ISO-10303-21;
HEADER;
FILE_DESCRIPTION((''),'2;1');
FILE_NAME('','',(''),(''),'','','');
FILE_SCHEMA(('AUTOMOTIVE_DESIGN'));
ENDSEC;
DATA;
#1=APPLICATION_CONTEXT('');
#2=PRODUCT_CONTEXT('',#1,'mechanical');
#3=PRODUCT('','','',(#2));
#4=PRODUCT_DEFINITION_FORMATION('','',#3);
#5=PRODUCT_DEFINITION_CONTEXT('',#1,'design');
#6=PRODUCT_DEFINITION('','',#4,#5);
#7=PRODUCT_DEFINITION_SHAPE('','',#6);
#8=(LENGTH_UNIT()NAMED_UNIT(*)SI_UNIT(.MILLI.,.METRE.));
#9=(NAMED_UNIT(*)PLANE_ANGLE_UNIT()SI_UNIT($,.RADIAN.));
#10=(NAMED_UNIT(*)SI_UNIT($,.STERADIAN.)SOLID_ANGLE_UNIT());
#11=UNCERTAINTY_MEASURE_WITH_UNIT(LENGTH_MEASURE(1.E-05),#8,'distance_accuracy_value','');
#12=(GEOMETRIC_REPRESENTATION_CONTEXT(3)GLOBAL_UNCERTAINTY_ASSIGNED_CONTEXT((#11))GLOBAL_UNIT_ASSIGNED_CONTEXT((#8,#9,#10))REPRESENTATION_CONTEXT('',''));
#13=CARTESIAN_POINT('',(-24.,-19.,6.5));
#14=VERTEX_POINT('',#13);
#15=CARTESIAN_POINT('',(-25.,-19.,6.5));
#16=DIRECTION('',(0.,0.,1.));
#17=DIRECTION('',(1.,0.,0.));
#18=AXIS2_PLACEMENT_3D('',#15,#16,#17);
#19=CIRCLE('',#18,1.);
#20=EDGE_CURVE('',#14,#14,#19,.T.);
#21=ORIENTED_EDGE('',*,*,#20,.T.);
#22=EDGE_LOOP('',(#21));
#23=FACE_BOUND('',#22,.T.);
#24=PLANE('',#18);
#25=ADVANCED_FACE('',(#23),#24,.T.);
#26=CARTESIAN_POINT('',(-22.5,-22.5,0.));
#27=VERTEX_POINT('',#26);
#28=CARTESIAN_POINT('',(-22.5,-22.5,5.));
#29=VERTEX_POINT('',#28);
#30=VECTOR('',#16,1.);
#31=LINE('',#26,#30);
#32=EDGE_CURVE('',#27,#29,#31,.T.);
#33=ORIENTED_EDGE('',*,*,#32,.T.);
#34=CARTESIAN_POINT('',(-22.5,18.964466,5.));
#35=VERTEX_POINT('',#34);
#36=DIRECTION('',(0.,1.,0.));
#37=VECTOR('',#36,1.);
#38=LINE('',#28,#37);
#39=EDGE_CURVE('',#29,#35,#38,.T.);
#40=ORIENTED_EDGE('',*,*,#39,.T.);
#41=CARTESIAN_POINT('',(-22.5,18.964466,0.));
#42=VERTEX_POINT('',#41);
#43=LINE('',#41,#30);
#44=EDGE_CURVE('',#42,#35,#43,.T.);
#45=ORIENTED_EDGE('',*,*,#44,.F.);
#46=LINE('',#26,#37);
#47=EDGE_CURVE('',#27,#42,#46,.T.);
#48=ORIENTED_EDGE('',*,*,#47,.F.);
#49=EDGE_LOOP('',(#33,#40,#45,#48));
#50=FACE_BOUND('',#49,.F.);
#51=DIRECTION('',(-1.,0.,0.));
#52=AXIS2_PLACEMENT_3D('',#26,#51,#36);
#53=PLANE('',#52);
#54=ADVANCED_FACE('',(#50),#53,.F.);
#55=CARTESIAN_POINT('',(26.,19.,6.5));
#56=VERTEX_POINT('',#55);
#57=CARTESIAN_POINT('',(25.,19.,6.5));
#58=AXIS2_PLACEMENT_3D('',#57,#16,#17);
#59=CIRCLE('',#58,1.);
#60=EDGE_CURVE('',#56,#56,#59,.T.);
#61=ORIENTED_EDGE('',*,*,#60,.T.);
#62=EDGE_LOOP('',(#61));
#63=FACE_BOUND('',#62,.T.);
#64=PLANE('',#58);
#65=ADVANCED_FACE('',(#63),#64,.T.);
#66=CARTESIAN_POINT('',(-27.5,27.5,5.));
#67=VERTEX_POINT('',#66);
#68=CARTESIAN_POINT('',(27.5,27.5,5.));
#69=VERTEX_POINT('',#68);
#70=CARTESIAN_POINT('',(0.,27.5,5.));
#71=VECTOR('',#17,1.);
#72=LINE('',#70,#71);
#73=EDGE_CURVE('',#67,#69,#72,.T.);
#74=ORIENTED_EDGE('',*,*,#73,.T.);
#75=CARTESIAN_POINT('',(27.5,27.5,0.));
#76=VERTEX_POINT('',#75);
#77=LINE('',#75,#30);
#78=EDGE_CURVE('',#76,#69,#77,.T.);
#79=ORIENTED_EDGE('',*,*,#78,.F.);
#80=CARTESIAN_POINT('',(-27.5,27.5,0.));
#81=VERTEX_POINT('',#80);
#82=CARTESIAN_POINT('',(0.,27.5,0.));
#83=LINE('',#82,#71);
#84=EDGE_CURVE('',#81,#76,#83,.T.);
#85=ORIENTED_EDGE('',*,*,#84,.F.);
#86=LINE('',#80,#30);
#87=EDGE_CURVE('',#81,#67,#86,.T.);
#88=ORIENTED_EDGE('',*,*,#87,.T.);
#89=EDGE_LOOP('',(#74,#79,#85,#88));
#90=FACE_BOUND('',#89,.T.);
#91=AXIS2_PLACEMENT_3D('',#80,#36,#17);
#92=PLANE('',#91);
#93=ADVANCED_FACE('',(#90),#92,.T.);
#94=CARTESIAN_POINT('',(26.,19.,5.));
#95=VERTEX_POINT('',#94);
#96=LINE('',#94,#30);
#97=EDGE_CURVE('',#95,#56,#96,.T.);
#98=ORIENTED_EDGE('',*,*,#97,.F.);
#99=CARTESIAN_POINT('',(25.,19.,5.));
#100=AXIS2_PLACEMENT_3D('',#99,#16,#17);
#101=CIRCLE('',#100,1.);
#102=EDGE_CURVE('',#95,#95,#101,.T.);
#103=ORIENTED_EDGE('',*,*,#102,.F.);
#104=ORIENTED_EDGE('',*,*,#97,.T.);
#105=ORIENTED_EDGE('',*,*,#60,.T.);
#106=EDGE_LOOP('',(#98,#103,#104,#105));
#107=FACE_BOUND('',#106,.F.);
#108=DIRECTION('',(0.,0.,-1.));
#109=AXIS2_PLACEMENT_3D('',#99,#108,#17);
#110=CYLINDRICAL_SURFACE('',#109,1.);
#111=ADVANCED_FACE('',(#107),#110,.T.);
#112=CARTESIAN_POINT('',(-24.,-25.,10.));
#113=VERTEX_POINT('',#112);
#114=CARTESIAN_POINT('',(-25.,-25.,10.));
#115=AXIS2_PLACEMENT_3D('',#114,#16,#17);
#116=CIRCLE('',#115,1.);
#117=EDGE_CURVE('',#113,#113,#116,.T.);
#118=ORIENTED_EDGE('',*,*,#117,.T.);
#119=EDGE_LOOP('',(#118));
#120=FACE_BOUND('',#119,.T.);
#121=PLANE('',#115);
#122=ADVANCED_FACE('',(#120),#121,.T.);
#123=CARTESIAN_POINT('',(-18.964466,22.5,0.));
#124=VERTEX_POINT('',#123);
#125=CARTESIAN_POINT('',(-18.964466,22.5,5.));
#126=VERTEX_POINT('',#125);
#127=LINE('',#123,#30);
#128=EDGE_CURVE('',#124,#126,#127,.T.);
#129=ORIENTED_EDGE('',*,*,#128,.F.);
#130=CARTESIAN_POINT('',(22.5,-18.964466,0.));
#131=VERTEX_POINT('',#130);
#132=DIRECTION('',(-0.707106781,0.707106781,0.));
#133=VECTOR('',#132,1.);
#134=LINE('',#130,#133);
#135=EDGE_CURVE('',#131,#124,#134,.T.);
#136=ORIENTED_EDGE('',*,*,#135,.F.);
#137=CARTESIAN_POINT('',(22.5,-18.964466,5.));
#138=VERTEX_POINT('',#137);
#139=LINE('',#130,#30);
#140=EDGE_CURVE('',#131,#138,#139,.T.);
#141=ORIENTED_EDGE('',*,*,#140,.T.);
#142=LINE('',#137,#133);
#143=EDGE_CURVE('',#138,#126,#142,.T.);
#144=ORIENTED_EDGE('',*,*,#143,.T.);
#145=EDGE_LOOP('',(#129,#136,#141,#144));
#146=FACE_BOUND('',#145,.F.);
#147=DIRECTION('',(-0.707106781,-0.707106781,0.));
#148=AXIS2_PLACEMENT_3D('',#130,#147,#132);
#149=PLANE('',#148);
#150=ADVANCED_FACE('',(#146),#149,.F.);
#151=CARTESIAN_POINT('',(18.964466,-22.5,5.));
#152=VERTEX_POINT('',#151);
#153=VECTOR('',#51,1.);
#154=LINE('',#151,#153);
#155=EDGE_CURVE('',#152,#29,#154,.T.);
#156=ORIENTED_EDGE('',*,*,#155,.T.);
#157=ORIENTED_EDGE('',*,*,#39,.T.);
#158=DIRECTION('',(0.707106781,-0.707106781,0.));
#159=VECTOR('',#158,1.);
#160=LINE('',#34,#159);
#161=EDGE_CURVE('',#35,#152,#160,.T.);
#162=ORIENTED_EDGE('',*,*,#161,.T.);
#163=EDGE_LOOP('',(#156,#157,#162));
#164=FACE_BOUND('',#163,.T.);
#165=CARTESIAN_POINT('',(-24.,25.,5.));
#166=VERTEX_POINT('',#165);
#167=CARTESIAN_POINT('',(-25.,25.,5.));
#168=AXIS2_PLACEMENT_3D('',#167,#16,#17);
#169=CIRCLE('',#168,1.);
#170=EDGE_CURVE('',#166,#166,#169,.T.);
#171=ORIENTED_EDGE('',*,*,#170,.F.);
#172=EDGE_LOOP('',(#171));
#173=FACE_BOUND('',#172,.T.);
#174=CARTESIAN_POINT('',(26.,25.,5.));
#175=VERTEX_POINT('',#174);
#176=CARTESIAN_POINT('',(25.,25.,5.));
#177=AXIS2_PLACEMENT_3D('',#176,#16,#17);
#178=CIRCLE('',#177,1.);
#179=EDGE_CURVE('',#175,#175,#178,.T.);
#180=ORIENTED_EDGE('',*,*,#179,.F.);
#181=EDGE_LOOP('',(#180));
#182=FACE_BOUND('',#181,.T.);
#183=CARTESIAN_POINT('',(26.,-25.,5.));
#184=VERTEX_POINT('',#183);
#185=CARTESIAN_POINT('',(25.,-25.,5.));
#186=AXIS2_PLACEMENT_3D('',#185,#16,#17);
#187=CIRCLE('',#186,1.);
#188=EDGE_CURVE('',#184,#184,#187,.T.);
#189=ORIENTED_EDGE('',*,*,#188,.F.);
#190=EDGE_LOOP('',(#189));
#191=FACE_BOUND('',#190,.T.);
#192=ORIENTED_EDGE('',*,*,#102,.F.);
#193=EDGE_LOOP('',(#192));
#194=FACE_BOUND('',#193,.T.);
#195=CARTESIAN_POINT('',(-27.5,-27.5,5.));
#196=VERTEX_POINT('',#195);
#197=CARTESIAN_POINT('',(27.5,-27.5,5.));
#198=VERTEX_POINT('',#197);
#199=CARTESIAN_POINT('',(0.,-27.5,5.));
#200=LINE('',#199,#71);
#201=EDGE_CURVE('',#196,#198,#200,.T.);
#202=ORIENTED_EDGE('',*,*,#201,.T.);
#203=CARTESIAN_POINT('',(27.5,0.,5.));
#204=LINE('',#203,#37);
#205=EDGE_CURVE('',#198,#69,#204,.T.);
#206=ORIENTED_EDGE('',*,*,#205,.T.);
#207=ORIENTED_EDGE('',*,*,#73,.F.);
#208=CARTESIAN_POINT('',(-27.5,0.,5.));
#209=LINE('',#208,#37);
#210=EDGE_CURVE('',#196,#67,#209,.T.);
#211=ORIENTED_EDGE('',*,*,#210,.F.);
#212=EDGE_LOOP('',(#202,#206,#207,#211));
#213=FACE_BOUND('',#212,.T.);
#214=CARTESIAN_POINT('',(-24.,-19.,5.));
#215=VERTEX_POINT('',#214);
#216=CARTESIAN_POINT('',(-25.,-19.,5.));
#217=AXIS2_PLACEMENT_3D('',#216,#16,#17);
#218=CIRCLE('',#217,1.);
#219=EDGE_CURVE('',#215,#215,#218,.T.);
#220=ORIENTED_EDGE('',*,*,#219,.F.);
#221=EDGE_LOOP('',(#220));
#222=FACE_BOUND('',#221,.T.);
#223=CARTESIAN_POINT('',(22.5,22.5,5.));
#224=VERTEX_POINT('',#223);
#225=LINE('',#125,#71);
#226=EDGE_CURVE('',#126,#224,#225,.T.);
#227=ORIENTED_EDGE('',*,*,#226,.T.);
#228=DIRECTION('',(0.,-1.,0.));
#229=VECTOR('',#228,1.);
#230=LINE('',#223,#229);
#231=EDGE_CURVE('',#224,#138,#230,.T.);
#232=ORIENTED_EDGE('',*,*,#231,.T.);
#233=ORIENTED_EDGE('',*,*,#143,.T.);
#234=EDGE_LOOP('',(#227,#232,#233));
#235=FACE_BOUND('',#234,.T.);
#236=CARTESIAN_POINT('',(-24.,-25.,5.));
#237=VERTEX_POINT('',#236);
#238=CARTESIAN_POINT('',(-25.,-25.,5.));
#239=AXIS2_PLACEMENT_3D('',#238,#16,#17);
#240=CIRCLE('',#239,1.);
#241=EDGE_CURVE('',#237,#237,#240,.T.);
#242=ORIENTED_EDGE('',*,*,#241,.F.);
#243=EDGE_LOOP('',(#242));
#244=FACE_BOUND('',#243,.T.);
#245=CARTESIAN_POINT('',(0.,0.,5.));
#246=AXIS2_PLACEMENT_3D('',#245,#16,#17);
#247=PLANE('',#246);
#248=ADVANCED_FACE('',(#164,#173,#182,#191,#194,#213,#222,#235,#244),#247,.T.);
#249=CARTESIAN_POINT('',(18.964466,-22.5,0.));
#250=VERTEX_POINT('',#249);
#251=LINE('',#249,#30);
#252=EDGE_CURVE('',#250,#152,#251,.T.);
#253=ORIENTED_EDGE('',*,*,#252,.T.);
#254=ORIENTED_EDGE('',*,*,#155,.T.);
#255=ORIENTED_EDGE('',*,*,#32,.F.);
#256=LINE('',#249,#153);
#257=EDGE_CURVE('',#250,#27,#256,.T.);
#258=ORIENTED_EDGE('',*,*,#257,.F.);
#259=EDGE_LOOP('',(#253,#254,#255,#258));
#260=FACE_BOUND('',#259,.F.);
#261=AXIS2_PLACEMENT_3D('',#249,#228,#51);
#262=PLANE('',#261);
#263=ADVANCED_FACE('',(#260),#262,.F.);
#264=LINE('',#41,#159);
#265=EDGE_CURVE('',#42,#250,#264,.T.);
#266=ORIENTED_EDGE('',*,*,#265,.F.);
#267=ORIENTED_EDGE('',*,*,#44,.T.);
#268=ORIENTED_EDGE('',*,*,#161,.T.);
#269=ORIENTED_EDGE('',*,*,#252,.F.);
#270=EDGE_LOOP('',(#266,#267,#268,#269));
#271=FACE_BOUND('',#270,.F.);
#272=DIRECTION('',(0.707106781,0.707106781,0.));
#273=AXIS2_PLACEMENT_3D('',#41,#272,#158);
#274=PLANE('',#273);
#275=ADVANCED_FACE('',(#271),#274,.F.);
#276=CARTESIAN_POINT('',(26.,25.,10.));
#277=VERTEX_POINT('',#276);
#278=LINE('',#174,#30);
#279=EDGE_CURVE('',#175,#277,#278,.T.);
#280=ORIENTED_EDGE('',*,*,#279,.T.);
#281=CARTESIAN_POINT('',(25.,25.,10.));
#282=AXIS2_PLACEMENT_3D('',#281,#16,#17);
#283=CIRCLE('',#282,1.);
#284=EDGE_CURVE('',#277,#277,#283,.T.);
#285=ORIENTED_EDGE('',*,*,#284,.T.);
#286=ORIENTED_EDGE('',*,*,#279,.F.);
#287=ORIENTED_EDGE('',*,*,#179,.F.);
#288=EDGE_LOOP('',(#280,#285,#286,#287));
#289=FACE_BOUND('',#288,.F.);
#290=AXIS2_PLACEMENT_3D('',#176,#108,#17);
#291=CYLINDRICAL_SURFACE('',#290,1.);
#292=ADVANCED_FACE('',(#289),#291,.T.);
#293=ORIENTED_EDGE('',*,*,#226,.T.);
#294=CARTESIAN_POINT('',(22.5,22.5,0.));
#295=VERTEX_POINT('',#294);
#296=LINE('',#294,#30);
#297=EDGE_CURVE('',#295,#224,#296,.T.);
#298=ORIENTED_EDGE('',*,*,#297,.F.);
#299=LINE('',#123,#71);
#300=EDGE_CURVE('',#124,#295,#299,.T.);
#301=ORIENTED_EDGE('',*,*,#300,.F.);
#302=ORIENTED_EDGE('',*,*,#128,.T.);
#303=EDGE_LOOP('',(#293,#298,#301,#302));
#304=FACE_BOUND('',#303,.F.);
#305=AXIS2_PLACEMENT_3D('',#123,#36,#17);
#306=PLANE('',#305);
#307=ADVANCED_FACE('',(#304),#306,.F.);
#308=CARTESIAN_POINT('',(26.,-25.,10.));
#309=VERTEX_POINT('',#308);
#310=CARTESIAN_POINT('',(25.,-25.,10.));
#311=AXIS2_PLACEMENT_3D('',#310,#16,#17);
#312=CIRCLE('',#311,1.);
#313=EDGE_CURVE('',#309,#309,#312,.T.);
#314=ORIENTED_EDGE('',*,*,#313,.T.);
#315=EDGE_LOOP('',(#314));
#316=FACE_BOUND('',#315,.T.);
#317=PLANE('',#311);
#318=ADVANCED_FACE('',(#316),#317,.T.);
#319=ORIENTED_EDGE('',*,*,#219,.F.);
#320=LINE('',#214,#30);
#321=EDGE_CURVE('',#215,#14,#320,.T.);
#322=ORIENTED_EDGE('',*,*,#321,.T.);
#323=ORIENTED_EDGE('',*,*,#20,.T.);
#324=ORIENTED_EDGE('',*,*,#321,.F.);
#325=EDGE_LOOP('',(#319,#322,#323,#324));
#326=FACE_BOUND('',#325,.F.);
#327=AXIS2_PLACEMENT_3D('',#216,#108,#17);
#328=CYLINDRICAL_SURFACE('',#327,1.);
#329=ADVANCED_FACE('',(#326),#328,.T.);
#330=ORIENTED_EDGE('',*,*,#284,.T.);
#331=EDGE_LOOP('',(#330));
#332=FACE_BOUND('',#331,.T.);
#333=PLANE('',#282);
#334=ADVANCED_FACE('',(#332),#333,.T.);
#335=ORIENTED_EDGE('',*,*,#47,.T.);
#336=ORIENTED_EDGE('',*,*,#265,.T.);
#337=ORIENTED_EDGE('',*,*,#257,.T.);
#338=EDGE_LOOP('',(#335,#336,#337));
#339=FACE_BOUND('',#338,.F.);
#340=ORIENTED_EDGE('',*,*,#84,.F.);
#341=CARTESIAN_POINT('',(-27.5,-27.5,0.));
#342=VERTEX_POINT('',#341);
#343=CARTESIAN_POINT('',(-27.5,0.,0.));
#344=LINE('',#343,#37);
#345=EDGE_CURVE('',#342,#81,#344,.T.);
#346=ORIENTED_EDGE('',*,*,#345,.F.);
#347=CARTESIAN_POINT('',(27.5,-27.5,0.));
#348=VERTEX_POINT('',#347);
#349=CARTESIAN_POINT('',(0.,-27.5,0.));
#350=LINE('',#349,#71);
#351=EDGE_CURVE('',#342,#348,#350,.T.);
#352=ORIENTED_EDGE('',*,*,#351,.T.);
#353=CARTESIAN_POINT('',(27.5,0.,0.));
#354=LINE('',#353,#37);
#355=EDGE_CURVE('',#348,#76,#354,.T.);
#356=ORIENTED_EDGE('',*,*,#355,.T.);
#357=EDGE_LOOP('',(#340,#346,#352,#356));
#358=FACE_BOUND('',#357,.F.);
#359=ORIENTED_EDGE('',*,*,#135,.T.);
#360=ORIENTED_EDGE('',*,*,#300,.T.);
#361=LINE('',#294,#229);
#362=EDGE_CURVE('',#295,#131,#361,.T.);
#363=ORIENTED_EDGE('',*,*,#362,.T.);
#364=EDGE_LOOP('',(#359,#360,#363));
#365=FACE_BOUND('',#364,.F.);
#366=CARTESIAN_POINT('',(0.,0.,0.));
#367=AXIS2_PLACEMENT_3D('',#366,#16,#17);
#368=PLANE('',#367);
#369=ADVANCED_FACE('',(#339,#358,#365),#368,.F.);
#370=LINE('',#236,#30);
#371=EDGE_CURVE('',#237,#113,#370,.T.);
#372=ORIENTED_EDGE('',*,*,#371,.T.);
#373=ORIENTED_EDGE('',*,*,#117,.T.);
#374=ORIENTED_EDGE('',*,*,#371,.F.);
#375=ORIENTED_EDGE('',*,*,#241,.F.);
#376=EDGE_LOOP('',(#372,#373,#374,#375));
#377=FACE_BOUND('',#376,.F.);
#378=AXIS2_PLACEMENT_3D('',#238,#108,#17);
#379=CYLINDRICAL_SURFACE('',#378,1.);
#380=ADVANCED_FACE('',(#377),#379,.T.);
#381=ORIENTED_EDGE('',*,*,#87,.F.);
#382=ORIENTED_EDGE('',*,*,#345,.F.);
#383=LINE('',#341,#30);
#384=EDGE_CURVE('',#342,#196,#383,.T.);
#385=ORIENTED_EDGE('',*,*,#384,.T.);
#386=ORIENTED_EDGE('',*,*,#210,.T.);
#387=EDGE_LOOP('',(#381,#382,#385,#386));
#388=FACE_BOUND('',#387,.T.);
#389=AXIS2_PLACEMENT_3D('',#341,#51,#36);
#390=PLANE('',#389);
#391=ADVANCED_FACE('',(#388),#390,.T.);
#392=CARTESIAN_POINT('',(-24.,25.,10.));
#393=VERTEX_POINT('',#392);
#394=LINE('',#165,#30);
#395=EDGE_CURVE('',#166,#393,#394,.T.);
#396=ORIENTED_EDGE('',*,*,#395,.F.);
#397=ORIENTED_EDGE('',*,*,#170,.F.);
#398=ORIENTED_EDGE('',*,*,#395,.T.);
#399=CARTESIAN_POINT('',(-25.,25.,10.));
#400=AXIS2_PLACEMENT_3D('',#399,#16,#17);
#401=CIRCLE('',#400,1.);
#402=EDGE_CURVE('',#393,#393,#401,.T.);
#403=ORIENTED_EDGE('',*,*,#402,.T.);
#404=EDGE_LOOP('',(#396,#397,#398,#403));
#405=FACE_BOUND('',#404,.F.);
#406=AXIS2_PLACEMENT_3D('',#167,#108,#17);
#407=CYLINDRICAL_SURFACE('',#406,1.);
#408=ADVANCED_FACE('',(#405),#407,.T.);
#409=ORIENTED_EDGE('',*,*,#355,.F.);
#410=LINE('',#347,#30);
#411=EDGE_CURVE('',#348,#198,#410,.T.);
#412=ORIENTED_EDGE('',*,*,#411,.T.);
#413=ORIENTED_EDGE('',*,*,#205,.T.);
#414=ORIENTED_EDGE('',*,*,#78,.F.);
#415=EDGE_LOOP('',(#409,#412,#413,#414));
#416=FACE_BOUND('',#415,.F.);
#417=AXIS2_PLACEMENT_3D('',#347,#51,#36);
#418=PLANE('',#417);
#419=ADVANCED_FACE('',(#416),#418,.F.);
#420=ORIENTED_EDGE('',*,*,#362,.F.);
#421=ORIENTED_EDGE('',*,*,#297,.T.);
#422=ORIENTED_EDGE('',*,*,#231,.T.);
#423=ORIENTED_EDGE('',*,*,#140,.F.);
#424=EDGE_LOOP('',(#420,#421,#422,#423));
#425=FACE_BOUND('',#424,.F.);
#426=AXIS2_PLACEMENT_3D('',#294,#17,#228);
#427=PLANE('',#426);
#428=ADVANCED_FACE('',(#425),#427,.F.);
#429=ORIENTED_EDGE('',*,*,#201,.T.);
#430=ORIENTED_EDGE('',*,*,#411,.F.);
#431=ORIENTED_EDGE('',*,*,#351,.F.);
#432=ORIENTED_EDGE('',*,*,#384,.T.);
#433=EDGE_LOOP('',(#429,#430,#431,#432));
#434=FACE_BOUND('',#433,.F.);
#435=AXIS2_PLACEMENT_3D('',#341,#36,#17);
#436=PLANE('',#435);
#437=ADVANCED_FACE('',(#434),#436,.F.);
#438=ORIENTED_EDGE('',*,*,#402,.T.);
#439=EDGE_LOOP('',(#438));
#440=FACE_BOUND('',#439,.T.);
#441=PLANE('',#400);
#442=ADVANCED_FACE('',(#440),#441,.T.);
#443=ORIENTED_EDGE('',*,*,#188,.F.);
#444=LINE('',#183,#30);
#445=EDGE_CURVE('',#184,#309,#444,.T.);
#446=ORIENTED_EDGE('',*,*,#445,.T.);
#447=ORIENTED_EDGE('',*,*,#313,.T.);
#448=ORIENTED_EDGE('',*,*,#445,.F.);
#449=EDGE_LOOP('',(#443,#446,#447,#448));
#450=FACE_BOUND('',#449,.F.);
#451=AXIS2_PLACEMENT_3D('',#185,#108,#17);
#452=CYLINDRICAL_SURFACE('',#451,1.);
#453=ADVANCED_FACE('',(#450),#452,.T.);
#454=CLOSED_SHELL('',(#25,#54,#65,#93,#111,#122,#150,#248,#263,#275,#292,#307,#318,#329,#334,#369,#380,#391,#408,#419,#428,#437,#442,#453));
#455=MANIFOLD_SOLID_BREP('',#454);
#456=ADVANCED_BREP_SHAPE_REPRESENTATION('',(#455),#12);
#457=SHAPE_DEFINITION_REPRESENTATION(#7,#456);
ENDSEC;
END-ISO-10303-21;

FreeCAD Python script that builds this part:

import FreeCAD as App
import Part
import Sketcher
Q = App.Units.Quantity


def add_polygon(sketch, points):
    """Adds a closed chain of lines whose ends are joined by coincident constraints."""
    first, n = sketch.GeometryCount, len(points)
    for a, b in zip(points, points[1:] + points[:1]):
        sketch.addGeometry(Part.LineSegment(App.Vector(*a, 0), App.Vector(*b, 0)), False)
    for i in range(n):
        sketch.addConstraint(Sketcher.Constraint("Coincident", first + i, 2, first + (i + 1) % n, 1))

doc = App.newDocument("Part")
body = doc.addObject("PartDesign::Body", "Body")

# Sketch on XY plane
sketch1 = body.newObject("Sketcher::SketchObject", "Sketch")
sketch1.AttachmentSupport = (doc.getObject("XY_Plane"), [""])
sketch1.MapMode = "FlatFace"
add_polygon(sketch1, [(-28, 28), (-28, -28), (28, -28), (28, 28)])  # lines 0-3
add_polygon(sketch1, [(-22, 19), (19, -22), (-22, -22)])  # lines 4-6
add_polygon(sketch1, [(22, 22), (22, -19), (-19, 22)])  # lines 7-9
sketch1.addConstraint([
    Sketcher.Constraint("Vertical", 0),
    Sketcher.Constraint("Horizontal", 1),
    Sketcher.Constraint("Vertical", 2),
    Sketcher.Constraint("Horizontal", 3),
    Sketcher.Constraint("Horizontal", 5),
    Sketcher.Constraint("Vertical", 6),
    Sketcher.Constraint("Vertical", 7),
    Sketcher.Constraint("Horizontal", 9),
    Sketcher.Constraint("Symmetric", 0, 2, 2, 2, -1, 1),
    Sketcher.Constraint("Symmetric", 6, 2, 7, 2, -1, 1),
    Sketcher.Constraint("Symmetric", 4, 2, 8, 2, -1, 1),
    Sketcher.Constraint("Equal", 3, 0),
    Sketcher.Constraint("Equal", 9, 6),
    Sketcher.Constraint("DistanceX", 1, 1, 1, 2, Q("55 mm")),
    Sketcher.Constraint("DistanceY", 1, 2, 4, 2, Q("5 mm")),
    Sketcher.Constraint("DistanceX", 0, 2, 5, 2, Q("5 mm")),
    Sketcher.Constraint("Distance", 4, Q("58.63961 mm")),
])
pad1 = body.newObject("PartDesign::Pad", "Pad")
pad1.Profile = sketch1
pad1.Length = 5

# Sketch on XY plane
sketch2 = body.newObject("Sketcher::SketchObject", "Sketch001")
sketch2.AttachmentSupport = (doc.getObject("XY_Plane"), [""])
sketch2.MapMode = "FlatFace"
sketch2.AttachmentOffset = App.Placement(App.Vector(0, 0, 5), App.Rotation())
sketch2.addGeometry([
    Part.Circle(App.Vector(-25, 25, 0), App.Vector(0, 0, 1), 1),
    Part.Circle(App.Vector(25, -25, 0), App.Vector(0, 0, 1), 1),
    Part.Circle(App.Vector(25, 25, 0), App.Vector(0, 0, 1), 1),
    Part.Circle(App.Vector(-25, -25, 0), App.Vector(0, 0, 1), 1),
], False)
sketch2.addConstraint([
    Sketcher.Constraint("Equal", 0, 1),
    Sketcher.Constraint("Equal", 1, 2),
    Sketcher.Constraint("Equal", 2, 3),
    Sketcher.Constraint("Symmetric", 0, 3, 1, 3, -1, 1),
    Sketcher.Constraint("Symmetric", 2, 3, 3, 3, -1, 1),
    Sketcher.Constraint("Symmetric", 0, 3, 2, 3, -2),
    Sketcher.Constraint("Diameter", 0, Q("2 mm")),
    Sketcher.Constraint("DistanceX", 0, 3, -1, 1, Q("25 mm")),
    Sketcher.Constraint("DistanceY", -1, 1, 0, 3, Q("25 mm")),
])
pad2 = body.newObject("PartDesign::Pad", "Pad001")
pad2.Profile = sketch2
pad2.Length = 5

# Sketch on XY plane
sketch3 = body.newObject("Sketcher::SketchObject", "Sketch002")
sketch3.AttachmentSupport = (doc.getObject("XY_Plane"), [""])
sketch3.MapMode = "FlatFace"
sketch3.AttachmentOffset = App.Placement(App.Vector(0, 0, 5), App.Rotation())
sketch3.addGeometry([
    Part.Circle(App.Vector(-25, -19, 0), App.Vector(0, 0, 1), 1),
    Part.Circle(App.Vector(25, 19, 0), App.Vector(0, 0, 1), 1),
], False)
sketch3.addConstraint([
    Sketcher.Constraint("Equal", 0, 1),
    Sketcher.Constraint("Symmetric", 0, 3, 1, 3, -1, 1),
    Sketcher.Constraint("Diameter", 0, Q("2 mm")),
    Sketcher.Constraint("DistanceX", 0, 3, -1, 1, Q("25 mm")),
    Sketcher.Constraint("DistanceY", 0, 3, -1, 1, Q("19 mm")),
])
pad3 = body.newObject("PartDesign::Pad", "Pad002")
pad3.Profile = sketch3
pad3.Length = 1.5

doc.recompute()
